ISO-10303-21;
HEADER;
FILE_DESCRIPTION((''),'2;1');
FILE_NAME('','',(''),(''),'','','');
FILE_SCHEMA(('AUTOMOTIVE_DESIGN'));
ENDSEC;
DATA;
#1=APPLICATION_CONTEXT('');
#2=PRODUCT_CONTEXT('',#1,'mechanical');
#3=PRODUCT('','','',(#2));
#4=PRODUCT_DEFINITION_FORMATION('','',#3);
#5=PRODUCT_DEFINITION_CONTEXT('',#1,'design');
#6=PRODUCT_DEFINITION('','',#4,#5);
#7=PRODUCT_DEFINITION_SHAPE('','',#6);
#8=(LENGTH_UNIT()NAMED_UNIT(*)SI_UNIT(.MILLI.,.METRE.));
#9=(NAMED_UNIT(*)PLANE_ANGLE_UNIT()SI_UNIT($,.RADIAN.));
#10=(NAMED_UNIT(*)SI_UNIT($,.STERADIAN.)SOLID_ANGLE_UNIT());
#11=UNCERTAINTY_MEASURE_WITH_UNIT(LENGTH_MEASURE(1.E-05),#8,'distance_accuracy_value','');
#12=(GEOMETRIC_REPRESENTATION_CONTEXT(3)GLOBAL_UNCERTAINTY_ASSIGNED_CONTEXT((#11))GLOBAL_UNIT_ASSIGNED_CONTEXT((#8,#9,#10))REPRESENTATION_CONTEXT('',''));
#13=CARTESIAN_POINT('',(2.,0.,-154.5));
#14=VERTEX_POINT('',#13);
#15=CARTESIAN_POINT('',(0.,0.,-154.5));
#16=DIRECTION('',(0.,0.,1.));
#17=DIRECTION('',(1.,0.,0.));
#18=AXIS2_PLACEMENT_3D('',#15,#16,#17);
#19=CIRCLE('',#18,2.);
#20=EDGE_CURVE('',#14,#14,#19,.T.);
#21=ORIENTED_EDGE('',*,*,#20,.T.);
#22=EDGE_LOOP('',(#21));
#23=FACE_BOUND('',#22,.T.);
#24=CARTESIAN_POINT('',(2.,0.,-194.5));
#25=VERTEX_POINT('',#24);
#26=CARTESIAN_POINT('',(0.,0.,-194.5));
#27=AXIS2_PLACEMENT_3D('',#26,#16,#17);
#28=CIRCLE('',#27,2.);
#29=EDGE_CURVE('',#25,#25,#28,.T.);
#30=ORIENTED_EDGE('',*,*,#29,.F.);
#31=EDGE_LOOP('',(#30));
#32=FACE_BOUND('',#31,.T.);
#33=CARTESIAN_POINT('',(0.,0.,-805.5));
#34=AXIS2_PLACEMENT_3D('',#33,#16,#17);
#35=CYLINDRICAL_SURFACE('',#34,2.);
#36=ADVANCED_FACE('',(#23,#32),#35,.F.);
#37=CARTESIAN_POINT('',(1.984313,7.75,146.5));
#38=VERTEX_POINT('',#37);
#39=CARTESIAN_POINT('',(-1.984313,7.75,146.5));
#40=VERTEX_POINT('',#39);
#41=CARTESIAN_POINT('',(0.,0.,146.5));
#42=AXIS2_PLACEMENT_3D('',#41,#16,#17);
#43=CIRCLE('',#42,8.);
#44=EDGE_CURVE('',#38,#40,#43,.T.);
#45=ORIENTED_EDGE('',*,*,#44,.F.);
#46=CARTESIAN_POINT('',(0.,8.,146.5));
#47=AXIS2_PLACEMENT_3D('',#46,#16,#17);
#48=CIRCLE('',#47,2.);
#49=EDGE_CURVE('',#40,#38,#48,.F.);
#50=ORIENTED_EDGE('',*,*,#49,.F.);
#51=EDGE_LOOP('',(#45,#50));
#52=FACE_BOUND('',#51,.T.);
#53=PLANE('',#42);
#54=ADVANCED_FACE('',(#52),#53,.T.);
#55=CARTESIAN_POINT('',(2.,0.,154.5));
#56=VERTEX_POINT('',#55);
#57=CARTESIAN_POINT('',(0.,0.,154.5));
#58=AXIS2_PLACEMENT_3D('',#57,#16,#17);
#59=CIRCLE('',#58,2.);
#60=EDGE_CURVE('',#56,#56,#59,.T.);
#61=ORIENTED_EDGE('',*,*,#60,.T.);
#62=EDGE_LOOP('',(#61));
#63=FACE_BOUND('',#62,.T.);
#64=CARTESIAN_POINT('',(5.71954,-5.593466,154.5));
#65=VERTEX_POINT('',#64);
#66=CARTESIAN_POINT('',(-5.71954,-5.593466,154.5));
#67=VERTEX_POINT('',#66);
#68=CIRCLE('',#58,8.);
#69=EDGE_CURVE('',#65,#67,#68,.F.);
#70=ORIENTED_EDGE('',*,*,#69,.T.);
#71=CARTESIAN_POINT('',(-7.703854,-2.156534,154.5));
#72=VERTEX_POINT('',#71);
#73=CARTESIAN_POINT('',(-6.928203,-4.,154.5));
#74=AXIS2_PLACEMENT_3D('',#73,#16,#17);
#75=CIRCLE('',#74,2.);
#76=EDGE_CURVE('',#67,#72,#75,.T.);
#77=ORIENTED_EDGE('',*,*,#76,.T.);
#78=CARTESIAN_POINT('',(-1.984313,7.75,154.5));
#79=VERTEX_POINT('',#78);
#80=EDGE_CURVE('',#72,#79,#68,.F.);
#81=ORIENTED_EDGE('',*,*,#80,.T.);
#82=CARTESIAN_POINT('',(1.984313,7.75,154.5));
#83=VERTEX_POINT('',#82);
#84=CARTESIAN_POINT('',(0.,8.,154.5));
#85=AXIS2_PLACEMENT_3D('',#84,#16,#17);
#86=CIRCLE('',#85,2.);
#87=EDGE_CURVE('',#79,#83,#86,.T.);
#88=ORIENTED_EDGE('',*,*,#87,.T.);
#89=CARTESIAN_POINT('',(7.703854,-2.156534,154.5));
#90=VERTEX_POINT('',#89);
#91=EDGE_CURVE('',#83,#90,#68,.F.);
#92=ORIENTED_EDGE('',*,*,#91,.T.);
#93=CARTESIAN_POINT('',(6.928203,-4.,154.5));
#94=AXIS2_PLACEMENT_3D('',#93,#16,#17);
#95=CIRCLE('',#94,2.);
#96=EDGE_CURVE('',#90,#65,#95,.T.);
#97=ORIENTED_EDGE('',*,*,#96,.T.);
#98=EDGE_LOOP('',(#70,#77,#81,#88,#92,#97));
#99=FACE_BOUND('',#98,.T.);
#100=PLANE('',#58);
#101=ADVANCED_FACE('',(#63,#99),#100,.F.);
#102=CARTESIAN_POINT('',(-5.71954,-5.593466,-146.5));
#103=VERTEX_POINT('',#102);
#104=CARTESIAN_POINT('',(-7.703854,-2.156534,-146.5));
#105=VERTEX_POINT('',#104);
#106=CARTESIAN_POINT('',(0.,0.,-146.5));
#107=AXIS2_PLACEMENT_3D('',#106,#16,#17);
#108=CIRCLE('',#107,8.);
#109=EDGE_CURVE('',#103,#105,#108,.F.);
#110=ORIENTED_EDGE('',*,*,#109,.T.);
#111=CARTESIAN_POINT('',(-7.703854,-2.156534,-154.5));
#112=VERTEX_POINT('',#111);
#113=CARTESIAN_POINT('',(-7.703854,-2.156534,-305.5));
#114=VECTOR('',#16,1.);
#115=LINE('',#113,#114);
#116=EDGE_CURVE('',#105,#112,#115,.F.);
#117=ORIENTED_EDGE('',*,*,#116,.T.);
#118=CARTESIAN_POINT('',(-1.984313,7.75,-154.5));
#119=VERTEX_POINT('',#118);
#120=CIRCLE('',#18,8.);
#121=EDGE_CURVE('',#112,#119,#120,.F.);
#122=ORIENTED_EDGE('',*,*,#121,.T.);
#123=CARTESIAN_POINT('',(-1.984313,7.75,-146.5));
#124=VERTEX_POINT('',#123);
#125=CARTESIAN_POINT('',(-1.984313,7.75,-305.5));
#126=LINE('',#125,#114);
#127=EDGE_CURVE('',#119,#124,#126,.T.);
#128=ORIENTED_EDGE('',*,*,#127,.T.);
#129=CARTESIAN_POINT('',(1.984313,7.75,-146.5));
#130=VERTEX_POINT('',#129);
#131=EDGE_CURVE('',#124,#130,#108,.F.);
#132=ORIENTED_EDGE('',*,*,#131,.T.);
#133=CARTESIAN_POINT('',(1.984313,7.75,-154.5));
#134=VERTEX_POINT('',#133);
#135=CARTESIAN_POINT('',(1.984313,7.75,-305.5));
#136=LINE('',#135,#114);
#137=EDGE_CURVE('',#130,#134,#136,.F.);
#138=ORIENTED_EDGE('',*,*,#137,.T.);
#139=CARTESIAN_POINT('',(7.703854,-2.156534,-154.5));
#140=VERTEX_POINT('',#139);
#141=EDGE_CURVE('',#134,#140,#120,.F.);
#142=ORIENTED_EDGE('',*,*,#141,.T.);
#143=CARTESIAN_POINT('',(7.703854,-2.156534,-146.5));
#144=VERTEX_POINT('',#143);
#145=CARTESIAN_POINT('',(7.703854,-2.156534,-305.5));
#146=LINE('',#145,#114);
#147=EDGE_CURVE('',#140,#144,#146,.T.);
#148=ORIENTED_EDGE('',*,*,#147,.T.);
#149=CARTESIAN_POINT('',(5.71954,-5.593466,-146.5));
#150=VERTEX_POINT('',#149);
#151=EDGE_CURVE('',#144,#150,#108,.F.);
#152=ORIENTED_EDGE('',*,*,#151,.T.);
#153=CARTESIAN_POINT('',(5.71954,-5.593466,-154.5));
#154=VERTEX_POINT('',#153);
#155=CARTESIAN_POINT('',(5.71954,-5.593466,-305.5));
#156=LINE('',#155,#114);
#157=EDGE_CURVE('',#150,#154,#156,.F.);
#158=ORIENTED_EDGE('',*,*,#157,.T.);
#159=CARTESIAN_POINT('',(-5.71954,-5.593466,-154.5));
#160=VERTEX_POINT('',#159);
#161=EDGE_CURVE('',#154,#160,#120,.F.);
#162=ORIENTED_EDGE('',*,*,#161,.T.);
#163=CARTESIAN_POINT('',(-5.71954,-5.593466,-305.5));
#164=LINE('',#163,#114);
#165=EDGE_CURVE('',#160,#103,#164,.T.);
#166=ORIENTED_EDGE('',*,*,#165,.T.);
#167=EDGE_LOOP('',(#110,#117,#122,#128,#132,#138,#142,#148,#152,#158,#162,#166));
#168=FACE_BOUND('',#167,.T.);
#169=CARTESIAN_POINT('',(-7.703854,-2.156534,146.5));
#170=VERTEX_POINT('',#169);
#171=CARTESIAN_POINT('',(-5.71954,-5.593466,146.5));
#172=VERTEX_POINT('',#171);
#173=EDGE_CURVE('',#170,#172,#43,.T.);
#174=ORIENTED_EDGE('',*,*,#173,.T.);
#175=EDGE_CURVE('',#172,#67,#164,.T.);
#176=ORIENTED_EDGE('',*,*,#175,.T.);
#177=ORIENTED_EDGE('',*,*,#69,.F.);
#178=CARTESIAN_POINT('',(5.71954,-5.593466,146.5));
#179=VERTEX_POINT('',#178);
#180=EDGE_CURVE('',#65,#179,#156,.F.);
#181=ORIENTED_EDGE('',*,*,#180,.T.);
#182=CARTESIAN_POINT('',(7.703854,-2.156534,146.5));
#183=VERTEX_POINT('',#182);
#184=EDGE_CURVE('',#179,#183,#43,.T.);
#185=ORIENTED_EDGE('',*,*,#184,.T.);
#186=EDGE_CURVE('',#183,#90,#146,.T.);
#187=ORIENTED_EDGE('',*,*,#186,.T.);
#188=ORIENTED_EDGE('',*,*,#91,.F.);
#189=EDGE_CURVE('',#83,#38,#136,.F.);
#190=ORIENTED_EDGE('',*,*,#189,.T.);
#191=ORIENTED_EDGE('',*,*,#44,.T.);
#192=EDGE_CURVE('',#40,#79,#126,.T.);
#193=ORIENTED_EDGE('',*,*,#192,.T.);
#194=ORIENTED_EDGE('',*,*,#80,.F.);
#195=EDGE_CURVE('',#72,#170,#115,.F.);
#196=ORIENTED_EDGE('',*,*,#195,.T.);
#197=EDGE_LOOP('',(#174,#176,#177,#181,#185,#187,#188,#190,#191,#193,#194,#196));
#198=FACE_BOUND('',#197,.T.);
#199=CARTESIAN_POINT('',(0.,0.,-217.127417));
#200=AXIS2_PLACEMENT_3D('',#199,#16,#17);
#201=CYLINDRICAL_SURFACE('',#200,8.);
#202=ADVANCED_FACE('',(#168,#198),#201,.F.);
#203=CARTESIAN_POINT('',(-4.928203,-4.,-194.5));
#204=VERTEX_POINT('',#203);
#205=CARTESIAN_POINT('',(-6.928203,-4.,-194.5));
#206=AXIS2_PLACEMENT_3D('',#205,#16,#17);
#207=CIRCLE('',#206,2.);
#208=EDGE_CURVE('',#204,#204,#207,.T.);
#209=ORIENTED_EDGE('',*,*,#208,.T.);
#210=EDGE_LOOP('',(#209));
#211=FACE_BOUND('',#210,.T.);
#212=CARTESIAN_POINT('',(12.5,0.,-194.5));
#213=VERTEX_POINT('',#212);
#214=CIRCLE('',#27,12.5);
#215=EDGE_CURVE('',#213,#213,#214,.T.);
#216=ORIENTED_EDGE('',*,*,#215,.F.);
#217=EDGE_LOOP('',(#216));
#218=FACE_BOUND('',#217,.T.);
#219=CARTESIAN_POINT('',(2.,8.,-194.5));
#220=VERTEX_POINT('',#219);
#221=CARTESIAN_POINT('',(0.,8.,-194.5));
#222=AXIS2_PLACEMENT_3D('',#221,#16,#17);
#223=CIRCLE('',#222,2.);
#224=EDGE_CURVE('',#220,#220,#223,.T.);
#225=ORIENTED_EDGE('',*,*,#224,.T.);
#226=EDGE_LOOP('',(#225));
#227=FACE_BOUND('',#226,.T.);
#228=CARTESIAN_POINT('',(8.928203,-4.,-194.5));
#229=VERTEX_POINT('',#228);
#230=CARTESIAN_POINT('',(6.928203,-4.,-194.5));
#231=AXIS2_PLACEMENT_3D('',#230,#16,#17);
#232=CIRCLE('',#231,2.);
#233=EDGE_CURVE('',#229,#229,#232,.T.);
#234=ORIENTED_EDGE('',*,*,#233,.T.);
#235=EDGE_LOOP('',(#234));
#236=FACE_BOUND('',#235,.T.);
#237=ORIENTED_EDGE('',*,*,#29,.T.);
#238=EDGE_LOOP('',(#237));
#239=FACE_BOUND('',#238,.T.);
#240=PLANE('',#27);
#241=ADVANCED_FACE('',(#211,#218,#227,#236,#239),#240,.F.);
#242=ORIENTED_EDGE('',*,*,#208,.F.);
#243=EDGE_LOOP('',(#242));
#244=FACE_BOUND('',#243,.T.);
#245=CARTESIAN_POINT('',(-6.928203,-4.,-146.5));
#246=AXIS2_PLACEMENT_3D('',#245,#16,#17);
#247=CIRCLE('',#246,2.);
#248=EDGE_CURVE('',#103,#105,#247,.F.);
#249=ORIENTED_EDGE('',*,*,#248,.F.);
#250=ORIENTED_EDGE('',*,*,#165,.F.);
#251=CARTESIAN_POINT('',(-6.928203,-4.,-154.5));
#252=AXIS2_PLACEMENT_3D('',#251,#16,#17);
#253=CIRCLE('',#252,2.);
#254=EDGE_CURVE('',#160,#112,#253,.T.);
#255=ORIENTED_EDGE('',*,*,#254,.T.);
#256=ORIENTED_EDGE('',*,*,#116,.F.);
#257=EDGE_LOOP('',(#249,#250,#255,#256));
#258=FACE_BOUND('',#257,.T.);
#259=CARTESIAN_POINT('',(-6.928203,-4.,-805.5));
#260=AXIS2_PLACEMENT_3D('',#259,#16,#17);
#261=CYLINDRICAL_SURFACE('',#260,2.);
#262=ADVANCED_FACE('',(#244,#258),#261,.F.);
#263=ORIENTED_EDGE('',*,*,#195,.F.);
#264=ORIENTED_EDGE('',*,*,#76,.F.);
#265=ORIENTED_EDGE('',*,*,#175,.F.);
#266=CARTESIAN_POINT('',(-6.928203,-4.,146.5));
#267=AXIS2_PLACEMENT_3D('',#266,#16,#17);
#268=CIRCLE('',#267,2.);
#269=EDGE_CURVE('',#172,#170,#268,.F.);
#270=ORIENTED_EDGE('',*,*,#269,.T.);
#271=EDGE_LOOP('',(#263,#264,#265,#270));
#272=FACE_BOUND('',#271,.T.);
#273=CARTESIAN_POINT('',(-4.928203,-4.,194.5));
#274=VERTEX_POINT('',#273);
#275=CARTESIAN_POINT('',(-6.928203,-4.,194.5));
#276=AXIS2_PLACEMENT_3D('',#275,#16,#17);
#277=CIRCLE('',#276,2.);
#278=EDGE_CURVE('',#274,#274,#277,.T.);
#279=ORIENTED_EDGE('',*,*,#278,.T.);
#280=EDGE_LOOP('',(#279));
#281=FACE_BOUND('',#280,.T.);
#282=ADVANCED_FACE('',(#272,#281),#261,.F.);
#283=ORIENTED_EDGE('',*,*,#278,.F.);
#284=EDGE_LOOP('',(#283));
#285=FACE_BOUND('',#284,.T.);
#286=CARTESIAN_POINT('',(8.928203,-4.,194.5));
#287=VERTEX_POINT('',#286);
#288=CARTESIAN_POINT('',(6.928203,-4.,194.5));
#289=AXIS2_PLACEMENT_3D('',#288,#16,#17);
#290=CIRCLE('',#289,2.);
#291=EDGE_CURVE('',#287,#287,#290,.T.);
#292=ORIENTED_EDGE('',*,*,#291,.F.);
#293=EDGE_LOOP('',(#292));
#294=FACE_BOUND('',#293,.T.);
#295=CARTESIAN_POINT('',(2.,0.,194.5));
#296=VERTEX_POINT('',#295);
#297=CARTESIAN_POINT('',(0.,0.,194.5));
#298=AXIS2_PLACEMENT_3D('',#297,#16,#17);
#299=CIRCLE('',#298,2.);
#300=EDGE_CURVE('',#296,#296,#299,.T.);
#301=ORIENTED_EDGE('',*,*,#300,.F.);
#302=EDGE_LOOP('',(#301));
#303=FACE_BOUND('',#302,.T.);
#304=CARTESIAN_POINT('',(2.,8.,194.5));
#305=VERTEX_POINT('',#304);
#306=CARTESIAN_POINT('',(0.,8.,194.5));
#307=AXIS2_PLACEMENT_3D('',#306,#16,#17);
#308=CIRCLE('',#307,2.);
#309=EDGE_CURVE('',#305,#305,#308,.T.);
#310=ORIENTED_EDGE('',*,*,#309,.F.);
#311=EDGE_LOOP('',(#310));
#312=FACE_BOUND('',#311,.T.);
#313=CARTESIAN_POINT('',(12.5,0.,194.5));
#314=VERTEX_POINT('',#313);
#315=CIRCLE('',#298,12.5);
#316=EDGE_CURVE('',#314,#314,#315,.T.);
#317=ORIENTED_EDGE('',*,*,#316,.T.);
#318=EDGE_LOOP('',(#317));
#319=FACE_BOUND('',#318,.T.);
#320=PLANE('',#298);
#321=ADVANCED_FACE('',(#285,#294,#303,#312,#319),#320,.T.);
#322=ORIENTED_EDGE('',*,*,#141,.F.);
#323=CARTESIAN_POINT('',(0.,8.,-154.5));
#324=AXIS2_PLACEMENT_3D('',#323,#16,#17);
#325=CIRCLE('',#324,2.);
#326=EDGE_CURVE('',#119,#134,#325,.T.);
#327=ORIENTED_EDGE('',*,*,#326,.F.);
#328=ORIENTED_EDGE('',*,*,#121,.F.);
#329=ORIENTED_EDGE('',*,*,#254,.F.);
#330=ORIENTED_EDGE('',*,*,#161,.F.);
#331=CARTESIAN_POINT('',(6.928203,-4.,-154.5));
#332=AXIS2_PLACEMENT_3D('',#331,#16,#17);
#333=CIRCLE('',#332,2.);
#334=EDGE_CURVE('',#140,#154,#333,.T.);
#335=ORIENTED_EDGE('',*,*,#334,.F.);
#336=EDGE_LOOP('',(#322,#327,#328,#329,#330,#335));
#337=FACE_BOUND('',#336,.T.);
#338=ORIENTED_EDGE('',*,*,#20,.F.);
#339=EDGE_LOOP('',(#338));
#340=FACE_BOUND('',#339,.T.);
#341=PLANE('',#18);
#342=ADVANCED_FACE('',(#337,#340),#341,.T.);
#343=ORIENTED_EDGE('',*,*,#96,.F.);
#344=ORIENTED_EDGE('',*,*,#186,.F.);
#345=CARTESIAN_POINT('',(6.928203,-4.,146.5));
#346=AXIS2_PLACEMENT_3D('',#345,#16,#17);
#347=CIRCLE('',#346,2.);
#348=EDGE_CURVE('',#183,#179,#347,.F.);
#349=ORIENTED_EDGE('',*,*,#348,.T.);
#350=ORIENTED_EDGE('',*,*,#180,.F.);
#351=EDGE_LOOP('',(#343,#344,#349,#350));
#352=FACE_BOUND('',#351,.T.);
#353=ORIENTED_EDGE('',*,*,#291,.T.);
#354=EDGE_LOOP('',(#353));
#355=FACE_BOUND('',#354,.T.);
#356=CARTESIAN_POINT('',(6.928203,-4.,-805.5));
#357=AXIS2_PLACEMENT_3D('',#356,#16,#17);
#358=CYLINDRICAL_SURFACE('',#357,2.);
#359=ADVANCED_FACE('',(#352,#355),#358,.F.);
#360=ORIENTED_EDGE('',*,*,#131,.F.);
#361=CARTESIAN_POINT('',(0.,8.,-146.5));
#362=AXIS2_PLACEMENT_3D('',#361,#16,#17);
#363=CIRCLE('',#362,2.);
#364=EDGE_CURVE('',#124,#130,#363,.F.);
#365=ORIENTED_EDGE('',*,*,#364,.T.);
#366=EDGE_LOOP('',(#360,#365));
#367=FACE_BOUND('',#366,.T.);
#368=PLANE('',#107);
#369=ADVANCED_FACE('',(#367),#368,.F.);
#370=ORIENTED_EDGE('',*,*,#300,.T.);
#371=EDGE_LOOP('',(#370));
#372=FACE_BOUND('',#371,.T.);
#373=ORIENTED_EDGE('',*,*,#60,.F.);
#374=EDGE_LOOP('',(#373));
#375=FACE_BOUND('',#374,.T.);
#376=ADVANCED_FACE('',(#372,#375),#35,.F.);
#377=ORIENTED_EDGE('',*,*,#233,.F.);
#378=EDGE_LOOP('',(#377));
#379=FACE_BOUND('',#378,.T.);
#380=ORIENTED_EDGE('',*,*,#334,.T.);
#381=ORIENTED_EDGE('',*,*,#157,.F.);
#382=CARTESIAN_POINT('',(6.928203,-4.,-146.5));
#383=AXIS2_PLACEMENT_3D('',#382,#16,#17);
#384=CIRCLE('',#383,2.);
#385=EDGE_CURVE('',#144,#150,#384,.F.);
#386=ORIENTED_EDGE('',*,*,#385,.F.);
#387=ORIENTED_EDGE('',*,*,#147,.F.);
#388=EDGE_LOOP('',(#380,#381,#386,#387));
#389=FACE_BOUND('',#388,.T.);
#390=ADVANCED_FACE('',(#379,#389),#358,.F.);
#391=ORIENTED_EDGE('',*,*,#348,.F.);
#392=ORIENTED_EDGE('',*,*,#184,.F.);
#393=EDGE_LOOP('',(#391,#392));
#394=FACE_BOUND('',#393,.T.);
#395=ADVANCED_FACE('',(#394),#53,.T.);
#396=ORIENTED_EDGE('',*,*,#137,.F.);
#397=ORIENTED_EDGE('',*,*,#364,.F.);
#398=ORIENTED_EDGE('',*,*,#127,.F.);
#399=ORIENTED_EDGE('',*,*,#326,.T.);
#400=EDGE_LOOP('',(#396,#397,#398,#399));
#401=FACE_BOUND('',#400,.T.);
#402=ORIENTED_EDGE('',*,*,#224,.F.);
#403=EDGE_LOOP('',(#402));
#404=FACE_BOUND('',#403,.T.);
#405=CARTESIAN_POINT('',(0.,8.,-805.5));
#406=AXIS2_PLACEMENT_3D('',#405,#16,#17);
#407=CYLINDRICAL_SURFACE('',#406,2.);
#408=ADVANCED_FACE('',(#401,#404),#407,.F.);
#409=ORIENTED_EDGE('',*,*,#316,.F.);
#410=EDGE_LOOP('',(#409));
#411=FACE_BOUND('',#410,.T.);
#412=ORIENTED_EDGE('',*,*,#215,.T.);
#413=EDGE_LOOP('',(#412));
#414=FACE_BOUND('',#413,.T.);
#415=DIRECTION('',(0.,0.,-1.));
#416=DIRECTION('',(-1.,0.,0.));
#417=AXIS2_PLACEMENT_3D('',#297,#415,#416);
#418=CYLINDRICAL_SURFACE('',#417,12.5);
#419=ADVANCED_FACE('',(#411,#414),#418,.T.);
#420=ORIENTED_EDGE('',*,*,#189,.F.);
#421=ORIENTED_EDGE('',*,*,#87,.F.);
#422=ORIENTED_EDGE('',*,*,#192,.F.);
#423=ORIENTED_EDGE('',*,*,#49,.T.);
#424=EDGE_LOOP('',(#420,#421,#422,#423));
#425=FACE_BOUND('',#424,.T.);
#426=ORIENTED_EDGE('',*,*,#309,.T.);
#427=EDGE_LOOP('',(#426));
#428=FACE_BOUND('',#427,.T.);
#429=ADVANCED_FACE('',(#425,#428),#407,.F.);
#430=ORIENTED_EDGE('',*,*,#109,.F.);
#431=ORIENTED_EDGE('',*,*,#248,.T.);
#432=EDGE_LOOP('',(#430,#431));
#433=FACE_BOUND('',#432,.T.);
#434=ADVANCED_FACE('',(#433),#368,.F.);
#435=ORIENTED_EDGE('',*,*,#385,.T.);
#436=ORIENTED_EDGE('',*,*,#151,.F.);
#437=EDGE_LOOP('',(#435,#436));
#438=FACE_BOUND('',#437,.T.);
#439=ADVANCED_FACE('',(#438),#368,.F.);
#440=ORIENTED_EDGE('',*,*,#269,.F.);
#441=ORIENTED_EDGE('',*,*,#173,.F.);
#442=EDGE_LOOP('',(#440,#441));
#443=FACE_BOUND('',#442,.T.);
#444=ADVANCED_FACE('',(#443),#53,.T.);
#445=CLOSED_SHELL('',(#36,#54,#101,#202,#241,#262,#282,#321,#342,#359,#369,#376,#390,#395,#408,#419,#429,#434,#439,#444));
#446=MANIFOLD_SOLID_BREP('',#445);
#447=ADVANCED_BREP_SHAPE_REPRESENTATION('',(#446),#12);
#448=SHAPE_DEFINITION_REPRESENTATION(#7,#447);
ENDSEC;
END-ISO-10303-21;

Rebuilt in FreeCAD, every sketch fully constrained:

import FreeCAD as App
import Part
import Sketcher
Q = App.Units.Quantity

doc = App.newDocument("Part")
body = doc.addObject("PartDesign::Body", "Body")

sketch1 = body.newObject("Sketcher::SketchObject", "Sketch")
sketch1.AttachmentSupport = (doc.getObject("XY_Plane"), [""])
sketch1.MapMode = "FlatFace"
sketch1.addGeometry(Part.Circle(App.Vector(0, 0, 0), App.Vector(0, 0, 1), 12), False)
sketch1.addConstraint(Sketcher.Constraint("Coincident", 0, 3, -1, 1))
sketch1.addConstraint(Sketcher.Constraint("Diameter", 0, Q("25 mm")))
pad1 = body.newObject("PartDesign::Pad", "Pad")
pad1.Profile = sketch1
pad1.Length = 389
pad1.Midplane = True

sketch2 = body.newObject("Sketcher::SketchObject", "Sketch001")
sketch2.AttachmentSupport = (doc.getObject("XY_Plane"), [""])
sketch2.MapMode = "FlatFace"
sketch2.AttachmentOffset = App.Placement(App.Vector(0, 0, 194.5), App.Rotation())
sketch2.addGeometry(Part.Circle(App.Vector(0, 0, 0), App.Vector(0, 0, 1), 8), False)
sketch2.addConstraint(Sketcher.Constraint("Coincident", 0, 3, -1, 1))
sketch2.addConstraint(Sketcher.Constraint("Diameter", 0, Q("16 mm")))
pocket1 = body.newObject("PartDesign::Pocket", "Pocket")
pocket1.Profile = sketch2
pocket1.Length = 349

sketch3 = body.newObject("Sketcher::SketchObject", "Sketch002")
sketch3.AttachmentSupport = (doc.getObject("XY_Plane"), [""])
sketch3.MapMode = "FlatFace"
sketch3.AttachmentOffset = App.Placement(App.Vector(0, 0, 194.5), App.Rotation())
sketch3.addGeometry(Part.Circle(App.Vector(0, 0, 0), App.Vector(0, 0, 1), 10), False)
sketch3.addConstraint(Sketcher.Constraint("Coincident", 0, 3, -1, 1))
sketch3.addConstraint(Sketcher.Constraint("Diameter", 0, Q("20 mm")))
pad2 = body.newObject("PartDesign::Pad", "Pad001")
pad2.Profile = sketch3
pad2.Length = 40
pad2.Reversed = True

sketch4 = body.newObject("Sketcher::SketchObject", "Sketch003")
sketch4.AttachmentSupport = (doc.getObject("XY_Plane"), [""])
sketch4.MapMode = "FlatFace"
sketch4.AttachmentOffset = App.Placement(App.Vector(0, 0, 194.5), App.Rotation())
sketch4.addGeometry(Part.Circle(App.Vector(0, 8, 0), App.Vector(0, 0, 1), 2), False)
sketch4.addGeometry(Part.Circle(App.Vector(-6.9, -4, 0), App.Vector(0, 0, 1), 2), False)
sketch4.addGeometry(Part.Circle(App.Vector(6.9, -4, 0), App.Vector(0, 0, 1), 2), False)
sketch4.addGeometry(Part.Circle(App.Vector(0, 0, 0), App.Vector(0, 0, 1), 2), False)
sketch4.addConstraint(Sketcher.Constraint("Coincident", 3, 3, -1, 1))
sketch4.addConstraint(Sketcher.Constraint("Equal", 0, 1))
sketch4.addConstraint(Sketcher.Constraint("Equal", 1, 2))
sketch4.addConstraint(Sketcher.Constraint("Equal", 2, 3))
sketch4.addConstraint(Sketcher.Constraint("Symmetric", 1, 3, 2, 3, -2))
sketch4.addConstraint(Sketcher.Constraint("PointOnObject", 0, 3, -2))
sketch4.addConstraint(Sketcher.Constraint("Diameter", 0, Q("4 mm")))
sketch4.addConstraint(Sketcher.Constraint("DistanceY", -1, 1, 0, 3, Q("8 mm")))
sketch4.addConstraint(Sketcher.Constraint("DistanceY", 1, 3, -1, 1, Q("4 mm")))
sketch4.addConstraint(Sketcher.Constraint("DistanceX", 1, 3, -1, 1, Q("6.928203 mm")))
pocket2 = body.newObject("PartDesign::Pocket", "Pocket001")
pocket2.Profile = sketch4
pocket2.Length = 1000

sketch5 = body.newObject("Sketcher::SketchObject", "Sketch004")
sketch5.AttachmentSupport = (doc.getObject("XY_Plane"), [""])
sketch5.MapMode = "FlatFace"
sketch5.addGeometry(Part.Circle(App.Vector(0, 0, 0), App.Vector(0, 0, 1), 12), False)
sketch5.addGeometry(Part.Circle(App.Vector(0, 0, 0), App.Vector(0, 0, 1), 8), False)
sketch5.addConstraint(Sketcher.Constraint("Coincident", 0, 3, -1, 1))
sketch5.addConstraint(Sketcher.Constraint("Coincident", 1, 3, -1, 1))
sketch5.addConstraint(Sketcher.Constraint("Diameter", 0, Q("25 mm")))
sketch5.addConstraint(Sketcher.Constraint("Diameter", 1, Q("16 mm")))
pad3 = body.newObject("PartDesign::Pad", "Pad002")
pad3.Profile = sketch5
pad3.Length = 146.5
pad3.Reversed = True

sketch6 = body.newObject("Sketcher::SketchObject", "Sketch005")
sketch6.AttachmentSupport = (doc.getObject("XY_Plane"), [""])
sketch6.MapMode = "FlatFace"
sketch6.AttachmentOffset = App.Placement(App.Vector(0, 0, 146.5), App.Rotation())
sketch6.addGeometry(Part.Circle(App.Vector(0, 0, 0), App.Vector(0, 0, 1), 12), False)
sketch6.addGeometry(Part.Circle(App.Vector(0, 0, 0), App.Vector(0, 0, 1), 8), False)
sketch6.addConstraint(Sketcher.Constraint("Coincident", 0, 3, -1, 1))
sketch6.addConstraint(Sketcher.Constraint("Coincident", 1, 3, -1, 1))
sketch6.addConstraint(Sketcher.Constraint("Diameter", 1, Q("16 mm")))
sketch6.addConstraint(Sketcher.Constraint("Diameter", 0, Q("23.360826 mm")))
pad4 = body.newObject("PartDesign::Pad", "Pad003")
pad4.Profile = sketch6
pad4.Length = 146.5
pad4.Reversed = True

doc.recompute()
